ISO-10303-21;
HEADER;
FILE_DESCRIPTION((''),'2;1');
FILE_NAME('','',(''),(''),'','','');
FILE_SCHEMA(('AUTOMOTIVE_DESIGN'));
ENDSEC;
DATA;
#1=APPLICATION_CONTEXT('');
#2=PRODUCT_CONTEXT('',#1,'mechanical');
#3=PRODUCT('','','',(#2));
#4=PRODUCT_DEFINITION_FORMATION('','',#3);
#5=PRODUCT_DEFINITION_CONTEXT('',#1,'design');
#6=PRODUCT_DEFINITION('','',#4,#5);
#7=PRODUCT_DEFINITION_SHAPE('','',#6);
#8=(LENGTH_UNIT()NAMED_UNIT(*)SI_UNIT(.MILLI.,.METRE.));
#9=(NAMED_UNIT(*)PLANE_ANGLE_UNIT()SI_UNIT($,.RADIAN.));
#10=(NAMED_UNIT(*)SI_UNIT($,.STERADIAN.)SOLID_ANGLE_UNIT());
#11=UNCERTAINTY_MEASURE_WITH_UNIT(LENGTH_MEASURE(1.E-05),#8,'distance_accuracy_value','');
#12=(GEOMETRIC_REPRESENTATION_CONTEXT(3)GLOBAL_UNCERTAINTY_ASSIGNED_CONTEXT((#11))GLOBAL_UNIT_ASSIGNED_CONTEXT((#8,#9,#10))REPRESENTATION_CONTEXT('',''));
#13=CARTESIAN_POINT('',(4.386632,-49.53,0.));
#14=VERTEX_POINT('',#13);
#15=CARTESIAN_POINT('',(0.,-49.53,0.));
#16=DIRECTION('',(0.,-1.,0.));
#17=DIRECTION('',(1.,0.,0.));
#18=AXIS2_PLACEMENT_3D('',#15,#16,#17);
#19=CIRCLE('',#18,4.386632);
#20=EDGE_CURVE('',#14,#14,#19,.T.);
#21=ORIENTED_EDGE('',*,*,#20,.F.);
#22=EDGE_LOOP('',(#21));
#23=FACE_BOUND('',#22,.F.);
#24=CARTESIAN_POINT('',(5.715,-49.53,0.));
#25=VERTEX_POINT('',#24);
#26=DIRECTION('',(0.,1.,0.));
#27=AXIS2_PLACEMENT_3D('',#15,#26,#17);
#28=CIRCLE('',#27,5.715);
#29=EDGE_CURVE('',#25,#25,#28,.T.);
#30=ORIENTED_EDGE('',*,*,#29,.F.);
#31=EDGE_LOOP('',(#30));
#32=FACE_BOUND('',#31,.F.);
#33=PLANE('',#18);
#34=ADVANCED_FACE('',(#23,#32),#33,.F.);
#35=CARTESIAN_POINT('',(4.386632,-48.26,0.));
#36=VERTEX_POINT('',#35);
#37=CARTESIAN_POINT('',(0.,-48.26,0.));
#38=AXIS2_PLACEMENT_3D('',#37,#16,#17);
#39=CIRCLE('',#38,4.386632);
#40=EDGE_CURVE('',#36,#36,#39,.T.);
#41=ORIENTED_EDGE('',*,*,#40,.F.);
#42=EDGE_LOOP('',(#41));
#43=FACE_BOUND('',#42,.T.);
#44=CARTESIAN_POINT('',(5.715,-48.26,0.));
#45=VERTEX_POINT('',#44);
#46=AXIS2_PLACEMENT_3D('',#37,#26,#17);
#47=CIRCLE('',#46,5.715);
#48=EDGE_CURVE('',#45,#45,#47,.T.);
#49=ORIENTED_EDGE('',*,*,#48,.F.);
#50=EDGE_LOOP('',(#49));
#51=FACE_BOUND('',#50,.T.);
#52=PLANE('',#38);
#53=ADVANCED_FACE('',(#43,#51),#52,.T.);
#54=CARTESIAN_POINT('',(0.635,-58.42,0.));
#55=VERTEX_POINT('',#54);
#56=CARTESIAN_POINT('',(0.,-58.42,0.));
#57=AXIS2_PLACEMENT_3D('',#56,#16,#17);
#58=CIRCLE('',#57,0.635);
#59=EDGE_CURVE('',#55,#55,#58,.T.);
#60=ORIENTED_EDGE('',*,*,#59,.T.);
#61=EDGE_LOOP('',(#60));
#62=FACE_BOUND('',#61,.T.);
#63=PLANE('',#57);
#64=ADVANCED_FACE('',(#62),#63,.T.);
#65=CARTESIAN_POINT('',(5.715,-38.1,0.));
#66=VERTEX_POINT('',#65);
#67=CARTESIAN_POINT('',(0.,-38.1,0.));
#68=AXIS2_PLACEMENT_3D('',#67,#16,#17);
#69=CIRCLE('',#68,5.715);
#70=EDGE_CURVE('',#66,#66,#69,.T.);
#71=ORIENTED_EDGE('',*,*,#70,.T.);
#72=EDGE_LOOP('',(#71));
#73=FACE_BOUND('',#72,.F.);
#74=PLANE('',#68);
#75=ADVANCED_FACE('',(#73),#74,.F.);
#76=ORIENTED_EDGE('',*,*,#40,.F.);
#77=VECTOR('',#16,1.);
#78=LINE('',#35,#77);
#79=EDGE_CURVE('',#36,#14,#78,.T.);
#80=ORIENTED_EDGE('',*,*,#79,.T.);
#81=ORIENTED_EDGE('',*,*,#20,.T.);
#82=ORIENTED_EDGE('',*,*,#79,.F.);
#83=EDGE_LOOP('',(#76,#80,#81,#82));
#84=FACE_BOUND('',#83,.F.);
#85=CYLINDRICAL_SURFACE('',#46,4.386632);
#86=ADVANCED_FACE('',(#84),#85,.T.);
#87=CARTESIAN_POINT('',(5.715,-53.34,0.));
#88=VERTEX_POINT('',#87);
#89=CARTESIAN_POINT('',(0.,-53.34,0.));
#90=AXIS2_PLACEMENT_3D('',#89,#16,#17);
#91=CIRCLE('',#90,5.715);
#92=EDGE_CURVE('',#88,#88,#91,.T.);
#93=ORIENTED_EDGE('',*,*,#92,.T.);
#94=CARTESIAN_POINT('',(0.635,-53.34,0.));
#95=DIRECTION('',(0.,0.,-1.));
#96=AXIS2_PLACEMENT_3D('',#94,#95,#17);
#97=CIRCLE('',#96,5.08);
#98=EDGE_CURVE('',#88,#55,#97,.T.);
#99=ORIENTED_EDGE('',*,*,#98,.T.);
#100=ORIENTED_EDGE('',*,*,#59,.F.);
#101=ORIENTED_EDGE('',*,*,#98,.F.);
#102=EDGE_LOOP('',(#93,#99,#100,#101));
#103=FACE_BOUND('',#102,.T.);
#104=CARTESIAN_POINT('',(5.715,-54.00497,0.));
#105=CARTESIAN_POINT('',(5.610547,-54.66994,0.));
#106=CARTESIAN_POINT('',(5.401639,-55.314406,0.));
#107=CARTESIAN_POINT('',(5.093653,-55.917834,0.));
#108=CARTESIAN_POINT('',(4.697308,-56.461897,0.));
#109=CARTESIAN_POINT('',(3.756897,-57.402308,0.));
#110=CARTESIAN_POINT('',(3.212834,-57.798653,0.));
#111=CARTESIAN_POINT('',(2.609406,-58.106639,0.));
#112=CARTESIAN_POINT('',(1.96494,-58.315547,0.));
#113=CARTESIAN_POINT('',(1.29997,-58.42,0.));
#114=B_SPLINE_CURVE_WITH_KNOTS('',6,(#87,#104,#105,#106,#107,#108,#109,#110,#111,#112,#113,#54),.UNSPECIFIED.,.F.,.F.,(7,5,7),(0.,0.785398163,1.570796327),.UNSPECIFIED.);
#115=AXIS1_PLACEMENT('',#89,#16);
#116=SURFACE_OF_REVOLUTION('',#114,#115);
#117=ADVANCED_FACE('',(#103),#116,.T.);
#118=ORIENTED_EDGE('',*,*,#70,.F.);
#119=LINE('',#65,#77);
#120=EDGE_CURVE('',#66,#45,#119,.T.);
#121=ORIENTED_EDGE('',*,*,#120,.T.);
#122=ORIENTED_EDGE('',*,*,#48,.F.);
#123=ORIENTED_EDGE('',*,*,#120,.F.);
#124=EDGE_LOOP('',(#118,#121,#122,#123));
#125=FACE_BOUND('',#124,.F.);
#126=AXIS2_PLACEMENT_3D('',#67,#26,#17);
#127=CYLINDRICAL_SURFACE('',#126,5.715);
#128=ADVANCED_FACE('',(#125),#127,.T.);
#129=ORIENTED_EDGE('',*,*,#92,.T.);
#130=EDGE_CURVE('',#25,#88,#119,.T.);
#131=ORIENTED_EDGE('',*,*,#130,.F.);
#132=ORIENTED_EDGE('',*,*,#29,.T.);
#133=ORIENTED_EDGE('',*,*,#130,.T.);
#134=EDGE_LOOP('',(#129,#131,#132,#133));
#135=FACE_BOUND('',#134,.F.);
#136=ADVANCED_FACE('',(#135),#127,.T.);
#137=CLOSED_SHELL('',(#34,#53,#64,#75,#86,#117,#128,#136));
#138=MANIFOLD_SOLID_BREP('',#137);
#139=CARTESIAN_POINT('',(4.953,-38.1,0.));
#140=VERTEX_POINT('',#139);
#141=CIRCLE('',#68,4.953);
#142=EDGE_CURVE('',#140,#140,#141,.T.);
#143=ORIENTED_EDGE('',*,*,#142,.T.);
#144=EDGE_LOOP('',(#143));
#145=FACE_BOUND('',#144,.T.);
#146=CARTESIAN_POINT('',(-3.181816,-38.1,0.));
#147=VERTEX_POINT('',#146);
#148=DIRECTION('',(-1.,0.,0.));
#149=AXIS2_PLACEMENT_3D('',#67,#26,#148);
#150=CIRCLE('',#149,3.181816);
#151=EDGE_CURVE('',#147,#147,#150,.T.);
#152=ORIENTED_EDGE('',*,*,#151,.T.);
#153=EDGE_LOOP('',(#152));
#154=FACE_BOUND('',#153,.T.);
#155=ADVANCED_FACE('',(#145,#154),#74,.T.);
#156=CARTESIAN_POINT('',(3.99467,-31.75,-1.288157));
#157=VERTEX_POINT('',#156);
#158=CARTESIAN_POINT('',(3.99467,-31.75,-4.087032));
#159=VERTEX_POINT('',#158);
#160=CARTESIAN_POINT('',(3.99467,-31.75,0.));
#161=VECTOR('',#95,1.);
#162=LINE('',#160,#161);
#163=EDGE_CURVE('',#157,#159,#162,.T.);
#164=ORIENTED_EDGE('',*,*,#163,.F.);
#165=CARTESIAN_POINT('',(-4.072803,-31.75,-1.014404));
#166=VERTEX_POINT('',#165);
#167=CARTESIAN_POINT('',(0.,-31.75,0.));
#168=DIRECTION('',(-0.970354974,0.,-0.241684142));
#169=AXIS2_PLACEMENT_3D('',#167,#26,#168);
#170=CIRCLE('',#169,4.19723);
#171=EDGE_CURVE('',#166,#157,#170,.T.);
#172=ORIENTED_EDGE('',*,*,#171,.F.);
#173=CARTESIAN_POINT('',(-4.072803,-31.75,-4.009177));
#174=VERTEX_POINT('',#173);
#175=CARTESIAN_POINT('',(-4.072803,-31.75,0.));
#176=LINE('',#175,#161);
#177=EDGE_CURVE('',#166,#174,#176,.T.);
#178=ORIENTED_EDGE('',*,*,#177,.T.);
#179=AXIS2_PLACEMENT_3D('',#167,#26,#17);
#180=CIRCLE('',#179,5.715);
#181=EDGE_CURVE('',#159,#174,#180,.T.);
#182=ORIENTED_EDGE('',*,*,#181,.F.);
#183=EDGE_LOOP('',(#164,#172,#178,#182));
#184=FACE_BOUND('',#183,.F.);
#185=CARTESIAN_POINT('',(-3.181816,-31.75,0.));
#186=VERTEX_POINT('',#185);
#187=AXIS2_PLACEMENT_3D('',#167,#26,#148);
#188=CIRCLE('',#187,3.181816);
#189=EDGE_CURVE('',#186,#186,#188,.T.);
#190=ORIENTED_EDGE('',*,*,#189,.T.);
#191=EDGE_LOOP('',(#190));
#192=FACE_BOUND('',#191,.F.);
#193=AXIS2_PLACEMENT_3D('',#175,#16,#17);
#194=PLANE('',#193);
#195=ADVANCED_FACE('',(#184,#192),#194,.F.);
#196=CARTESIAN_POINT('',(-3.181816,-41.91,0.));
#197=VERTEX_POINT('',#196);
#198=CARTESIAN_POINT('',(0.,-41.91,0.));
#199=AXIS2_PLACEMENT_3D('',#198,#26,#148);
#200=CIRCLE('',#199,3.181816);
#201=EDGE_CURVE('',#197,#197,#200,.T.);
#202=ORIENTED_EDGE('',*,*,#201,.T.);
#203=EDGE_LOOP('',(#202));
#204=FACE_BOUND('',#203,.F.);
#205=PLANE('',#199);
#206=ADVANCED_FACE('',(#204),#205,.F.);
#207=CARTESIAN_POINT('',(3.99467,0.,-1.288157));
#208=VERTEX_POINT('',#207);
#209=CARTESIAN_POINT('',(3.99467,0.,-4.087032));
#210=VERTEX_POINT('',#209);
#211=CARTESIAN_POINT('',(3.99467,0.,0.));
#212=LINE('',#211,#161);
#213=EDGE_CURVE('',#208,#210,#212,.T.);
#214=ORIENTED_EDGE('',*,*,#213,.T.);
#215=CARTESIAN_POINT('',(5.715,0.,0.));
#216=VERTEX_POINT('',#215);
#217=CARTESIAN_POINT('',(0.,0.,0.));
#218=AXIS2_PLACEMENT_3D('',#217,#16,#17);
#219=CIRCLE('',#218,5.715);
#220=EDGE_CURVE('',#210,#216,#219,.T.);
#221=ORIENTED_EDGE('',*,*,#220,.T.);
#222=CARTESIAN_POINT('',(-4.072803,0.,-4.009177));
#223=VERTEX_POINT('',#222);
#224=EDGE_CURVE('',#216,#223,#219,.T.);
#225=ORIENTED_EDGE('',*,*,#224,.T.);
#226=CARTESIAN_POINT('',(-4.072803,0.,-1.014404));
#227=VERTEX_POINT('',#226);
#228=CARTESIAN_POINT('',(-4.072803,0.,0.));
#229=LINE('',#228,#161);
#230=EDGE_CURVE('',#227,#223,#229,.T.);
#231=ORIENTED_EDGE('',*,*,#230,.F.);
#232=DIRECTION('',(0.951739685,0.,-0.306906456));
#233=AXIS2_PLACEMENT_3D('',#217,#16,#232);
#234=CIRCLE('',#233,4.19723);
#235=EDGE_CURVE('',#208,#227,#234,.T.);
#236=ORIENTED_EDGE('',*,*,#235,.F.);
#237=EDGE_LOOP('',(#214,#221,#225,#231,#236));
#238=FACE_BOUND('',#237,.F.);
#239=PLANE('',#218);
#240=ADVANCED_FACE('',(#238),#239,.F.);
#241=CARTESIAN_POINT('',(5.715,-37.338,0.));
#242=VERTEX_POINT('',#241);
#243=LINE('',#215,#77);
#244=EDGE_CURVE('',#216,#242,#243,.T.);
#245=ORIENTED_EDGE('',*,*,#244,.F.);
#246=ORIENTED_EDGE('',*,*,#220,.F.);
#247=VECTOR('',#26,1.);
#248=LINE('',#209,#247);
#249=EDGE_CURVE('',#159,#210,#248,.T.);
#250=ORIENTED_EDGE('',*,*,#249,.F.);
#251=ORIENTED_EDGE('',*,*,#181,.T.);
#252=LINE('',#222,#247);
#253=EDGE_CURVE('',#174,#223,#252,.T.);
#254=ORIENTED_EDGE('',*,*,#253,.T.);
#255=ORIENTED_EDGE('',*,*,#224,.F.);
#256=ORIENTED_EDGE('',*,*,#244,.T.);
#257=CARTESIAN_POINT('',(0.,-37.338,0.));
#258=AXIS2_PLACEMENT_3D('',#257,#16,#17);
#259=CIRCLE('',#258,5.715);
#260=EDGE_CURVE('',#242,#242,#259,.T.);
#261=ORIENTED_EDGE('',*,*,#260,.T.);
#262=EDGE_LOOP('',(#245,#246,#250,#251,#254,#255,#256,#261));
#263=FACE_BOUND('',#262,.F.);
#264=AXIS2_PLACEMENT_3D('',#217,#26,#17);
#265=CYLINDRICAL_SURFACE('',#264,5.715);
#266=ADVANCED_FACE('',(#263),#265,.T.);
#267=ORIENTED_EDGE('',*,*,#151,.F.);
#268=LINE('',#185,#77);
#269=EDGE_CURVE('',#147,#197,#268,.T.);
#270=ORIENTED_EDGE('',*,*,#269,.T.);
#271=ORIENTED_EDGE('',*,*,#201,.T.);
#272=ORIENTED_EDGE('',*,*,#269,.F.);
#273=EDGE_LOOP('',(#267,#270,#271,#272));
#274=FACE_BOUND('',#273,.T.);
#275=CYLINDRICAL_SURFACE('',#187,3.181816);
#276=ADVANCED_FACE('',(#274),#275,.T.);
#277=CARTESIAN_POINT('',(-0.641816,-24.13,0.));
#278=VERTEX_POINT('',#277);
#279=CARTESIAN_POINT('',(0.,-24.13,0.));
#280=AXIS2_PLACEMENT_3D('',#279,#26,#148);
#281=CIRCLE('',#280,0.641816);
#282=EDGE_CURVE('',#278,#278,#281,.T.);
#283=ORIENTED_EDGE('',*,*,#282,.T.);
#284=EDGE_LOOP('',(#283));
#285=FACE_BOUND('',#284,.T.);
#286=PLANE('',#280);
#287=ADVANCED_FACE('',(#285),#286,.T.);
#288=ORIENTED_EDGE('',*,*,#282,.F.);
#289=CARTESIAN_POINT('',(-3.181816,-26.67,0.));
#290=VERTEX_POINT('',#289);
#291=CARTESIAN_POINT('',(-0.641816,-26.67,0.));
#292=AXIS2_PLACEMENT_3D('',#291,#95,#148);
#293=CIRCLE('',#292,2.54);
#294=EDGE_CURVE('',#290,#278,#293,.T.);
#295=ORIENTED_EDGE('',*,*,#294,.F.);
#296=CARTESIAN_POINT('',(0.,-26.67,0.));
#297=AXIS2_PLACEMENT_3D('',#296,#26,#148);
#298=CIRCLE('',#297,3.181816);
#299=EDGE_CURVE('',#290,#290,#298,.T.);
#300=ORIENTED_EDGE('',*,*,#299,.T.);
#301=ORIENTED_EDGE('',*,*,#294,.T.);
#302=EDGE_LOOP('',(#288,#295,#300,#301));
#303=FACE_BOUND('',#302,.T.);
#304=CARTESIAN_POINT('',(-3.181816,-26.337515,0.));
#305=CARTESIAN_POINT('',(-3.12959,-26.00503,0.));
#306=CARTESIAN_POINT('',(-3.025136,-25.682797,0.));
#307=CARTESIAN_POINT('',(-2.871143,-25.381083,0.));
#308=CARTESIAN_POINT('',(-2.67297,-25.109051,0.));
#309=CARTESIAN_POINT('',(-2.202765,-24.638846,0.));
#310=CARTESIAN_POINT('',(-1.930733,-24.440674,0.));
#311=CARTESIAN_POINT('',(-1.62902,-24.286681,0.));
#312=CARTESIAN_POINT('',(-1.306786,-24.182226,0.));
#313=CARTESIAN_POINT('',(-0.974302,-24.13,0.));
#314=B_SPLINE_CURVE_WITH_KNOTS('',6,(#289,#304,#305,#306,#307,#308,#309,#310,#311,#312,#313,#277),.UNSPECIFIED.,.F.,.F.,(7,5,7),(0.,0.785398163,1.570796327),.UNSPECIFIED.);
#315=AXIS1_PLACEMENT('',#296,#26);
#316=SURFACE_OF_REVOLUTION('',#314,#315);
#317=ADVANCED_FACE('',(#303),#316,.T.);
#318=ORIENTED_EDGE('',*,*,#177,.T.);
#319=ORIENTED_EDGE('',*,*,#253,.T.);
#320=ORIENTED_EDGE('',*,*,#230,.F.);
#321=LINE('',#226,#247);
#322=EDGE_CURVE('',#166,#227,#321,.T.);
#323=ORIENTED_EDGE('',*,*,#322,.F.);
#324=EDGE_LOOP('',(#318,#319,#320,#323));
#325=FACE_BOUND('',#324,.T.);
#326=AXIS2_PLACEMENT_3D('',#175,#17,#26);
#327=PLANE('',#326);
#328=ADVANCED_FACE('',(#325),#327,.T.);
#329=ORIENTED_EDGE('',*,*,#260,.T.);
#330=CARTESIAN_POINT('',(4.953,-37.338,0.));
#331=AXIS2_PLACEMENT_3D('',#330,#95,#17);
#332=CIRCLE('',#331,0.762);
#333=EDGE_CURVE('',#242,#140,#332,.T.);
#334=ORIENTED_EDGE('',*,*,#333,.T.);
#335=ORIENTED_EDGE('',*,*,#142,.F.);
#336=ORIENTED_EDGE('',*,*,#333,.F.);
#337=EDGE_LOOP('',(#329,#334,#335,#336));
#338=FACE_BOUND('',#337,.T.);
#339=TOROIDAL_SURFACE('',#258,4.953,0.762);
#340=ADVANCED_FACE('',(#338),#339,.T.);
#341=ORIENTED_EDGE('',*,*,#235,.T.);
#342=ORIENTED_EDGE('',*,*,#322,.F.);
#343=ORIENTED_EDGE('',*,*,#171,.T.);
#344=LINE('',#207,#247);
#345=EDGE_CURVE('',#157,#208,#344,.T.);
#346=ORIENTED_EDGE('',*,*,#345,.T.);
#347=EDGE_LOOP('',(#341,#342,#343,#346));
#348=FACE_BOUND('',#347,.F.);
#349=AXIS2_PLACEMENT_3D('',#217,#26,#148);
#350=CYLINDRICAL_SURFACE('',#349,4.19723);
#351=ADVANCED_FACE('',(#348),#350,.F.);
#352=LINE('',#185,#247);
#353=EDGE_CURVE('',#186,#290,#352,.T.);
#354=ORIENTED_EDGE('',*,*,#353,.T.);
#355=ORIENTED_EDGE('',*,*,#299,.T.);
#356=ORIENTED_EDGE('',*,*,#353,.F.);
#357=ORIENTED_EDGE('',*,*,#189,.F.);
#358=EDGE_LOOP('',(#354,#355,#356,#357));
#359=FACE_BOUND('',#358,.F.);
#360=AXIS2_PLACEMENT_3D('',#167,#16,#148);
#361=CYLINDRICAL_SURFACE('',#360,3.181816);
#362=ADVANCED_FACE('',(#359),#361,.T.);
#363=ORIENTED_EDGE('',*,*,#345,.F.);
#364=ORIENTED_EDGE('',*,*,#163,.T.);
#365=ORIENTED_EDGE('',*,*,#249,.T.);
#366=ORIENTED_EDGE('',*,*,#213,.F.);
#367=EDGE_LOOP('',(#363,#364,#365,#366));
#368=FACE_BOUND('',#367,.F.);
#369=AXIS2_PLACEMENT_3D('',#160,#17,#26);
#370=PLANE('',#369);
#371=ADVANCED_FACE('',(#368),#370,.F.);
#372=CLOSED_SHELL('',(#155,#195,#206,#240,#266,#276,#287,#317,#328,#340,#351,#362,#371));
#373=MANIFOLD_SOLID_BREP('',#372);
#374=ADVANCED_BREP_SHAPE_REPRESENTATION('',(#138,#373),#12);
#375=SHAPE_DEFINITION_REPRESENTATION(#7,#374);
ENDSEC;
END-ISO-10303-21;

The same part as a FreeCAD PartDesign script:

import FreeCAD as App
import Part
import Sketcher

V = App.Vector
Q = App.Units.Quantity


def edges_at(feature, points):
    """Names of the edges that pass closest to the given points."""
    edges = feature.Shape.Edges
    near = lambda p: min(range(len(edges)), key=lambda i: edges[i].distToShape(Part.Vertex(*p))[0])
    return sorted({f"Edge{near(p) + 1}" for p in points})

doc = App.newDocument("Part")
params = doc.addObject("Spreadsheet::Sheet", "Params")
for row, (alias, value) in enumerate([
    ("sketch1_diameter", "0.45 in"),
    ("pad1_length", "1.5 in"),
    ("fillet_radius", "0.03 in"),
    ("pocket1_length", "1.25 in"),
    ("sketch3_height", "1.25 in"),
    ("pocket2_length", "1 in"),
    ("pad2_length", "0.3 in"),
    ("pad2_length2", "0.4 in"),
    ("fillet2_radius", "0.1 in"),
    ("sketch5_diameter", "0.45 in"),
    ("pad3_length", "0.8 in"),
    ("fillet3_radius", "0.2 in"),
    ("pocket3_length", "0.05 in"),
], start=1):
    params.set(f"A{row}", alias)
    params.set(f"B{row}", "=" + value)
    params.setAlias(f"B{row}", alias)

body = doc.addObject("PartDesign::Body", "Body")

# Sketch on XZ plane
sketch1 = doc.addObject("Sketcher::SketchObject", "Sketch")
body.addObject(sketch1)
sketch1.AttachmentSupport = (doc.XZ_Plane, [""])
sketch1.MapMode = "FlatFace"
sketch1.addGeometry(Part.Circle(V(0, 0, 0), V(0, 0, 1), 5.715), False)
sketch1.addConstraint(Sketcher.Constraint("Coincident", 0, 3, -1, 1))
sketch1.addConstraint(Sketcher.Constraint("Diameter", 0, Q("0.45 in")))
sketch1.setExpression("Constraints[1]", "Params.sketch1_diameter")
pad1 = doc.addObject("PartDesign::Pad", "Pad")
body.addObject(pad1)
pad1.Profile = sketch1
pad1.setExpression("Length", "Params.pad1_length")
doc.recompute()

fillet = doc.addObject("PartDesign::Fillet", "Fillet")
body.addObject(fillet)
fillet.Base = (pad1, edges_at(pad1, [(-5.715, -38.1, 0)]))
fillet.setExpression("Radius", "Params.fillet_radius")

# Sketch on XZ plane
sketch2 = doc.addObject("Sketcher::SketchObject", "Sketch001")
body.addObject(sketch2)
sketch2.AttachmentSupport = (doc.XZ_Plane, [""])
sketch2.MapMode = "FlatFace"
sketch2.addGeometry(Part.Circle(V(0, 0, 0), V(0, 0, 1), 4.19723), False)
sketch2.addConstraint(Sketcher.Constraint("Coincident", 0, 3, -1, 1))
sketch2.addConstraint(Sketcher.Constraint("Diameter", 0, Q("8.39446 mm")))
pocket1 = doc.addObject("PartDesign::Pocket", "Pocket")
body.addObject(pocket1)
pocket1.Profile = sketch2
pocket1.setExpression("Length", "Params.pocket1_length")
pocket1.Reversed = True

# Sketch on XY plane
sketch3 = doc.addObject("Sketcher::SketchObject", "Sketch002")
body.addObject(sketch3)
sketch3.AttachmentSupport = (doc.XY_Plane, [""])
sketch3.MapMode = "FlatFace"
sketch3.addGeometry(Part.LineSegment(V(-4.072803, 0, 0), V(-4.072803, -31.75, 0)), False)
sketch3.addGeometry(Part.LineSegment(V(-4.072803, -31.75, 0), V(3.99467, -31.75, 0)), False)
sketch3.addGeometry(Part.LineSegment(V(3.99467, -31.75, 0), V(3.99467, 0, 0)), False)
sketch3.addGeometry(Part.LineSegment(V(3.99467, 0, 0), V(-4.072803, 0, 0)), False)
sketch3.addConstraint(Sketcher.Constraint("Coincident", 0, 2, 1, 1))
sketch3.addConstraint(Sketcher.Constraint("Coincident", 1, 2, 2, 1))
sketch3.addConstraint(Sketcher.Constraint("Coincident", 2, 2, 3, 1))
sketch3.addConstraint(Sketcher.Constraint("Coincident", 3, 2, 0, 1))
sketch3.addConstraint(Sketcher.Constraint("Vertical", 0))
sketch3.addConstraint(Sketcher.Constraint("Horizontal", 1))
sketch3.addConstraint(Sketcher.Constraint("Vertical", 2))
sketch3.addConstraint(Sketcher.Constraint("Horizontal", 3))
sketch3.addConstraint(Sketcher.Constraint("PointOnObject", 2, 2, -1))
sketch3.addConstraint(Sketcher.Constraint("DistanceY", 0, 2, 0, 1, Q("1.25 in")))
sketch3.addConstraint(Sketcher.Constraint("DistanceX", 1, 1, 1, 2, Q("8.067473 mm")))
sketch3.addConstraint(Sketcher.Constraint("DistanceX", -1, 1, 1, 2, Q("3.99467 mm")))
sketch3.setExpression("Constraints[9]", "Params.sketch3_height")
pocket2 = doc.addObject("PartDesign::Pocket", "Pocket001")
body.addObject(pocket2)
pocket2.Profile = sketch3
pocket2.setExpression("Length", "Params.pocket2_length")

# Sketch on XZ plane
sketch4 = doc.addObject("Sketcher::SketchObject", "Sketch003")
body.addObject(sketch4)
sketch4.AttachmentSupport = (doc.XZ_Plane, [""])
sketch4.MapMode = "FlatFace"
sketch4.AttachmentOffset = App.Placement(V(0, 0, 1.25 * 25.4), App.Rotation())
sketch4.addGeometry(Part.Circle(V(0, 0, 0), V(0, 0, 1), 3.181816), False)
sketch4.addConstraint(Sketcher.Constraint("Coincident", 0, 3, -1, 1))
sketch4.addConstraint(Sketcher.Constraint("Diameter", 0, Q("6.363633 mm")))
pad2 = doc.addObject("PartDesign::Pad", "Pad001")
body.addObject(pad2)
pad2.Profile = sketch4
pad2.Type = "TwoLengths"
pad2.setExpression("Length", "Params.pad2_length")
pad2.setExpression("Length2", "Params.pad2_length2")
pad2.Reversed = True
doc.recompute()

fillet2 = doc.addObject("PartDesign::Fillet", "Fillet001")
body.addObject(fillet2)
fillet2.Base = (pad2, edges_at(pad2, [(3.182, -24.13, 0)]))
fillet2.setExpression("Radius", "Params.fillet2_radius")
body2 = doc.addObject("PartDesign::Body", "Body001")

# Sketch on XZ plane
sketch5 = doc.addObject("Sketcher::SketchObject", "Sketch004")
body2.addObject(sketch5)
sketch5.AttachmentSupport = (doc.getObject("XZ_Plane001"), [""])
sketch5.MapMode = "FlatFace"
sketch5.AttachmentOffset = App.Placement(V(0, 0, 1.5 * 25.4), App.Rotation())
sketch5.addGeometry(Part.Circle(V(0, 0, 0), V(0, 0, 1), 5.715), False)
sketch5.addConstraint(Sketcher.Constraint("Coincident", 0, 3, -1, 1))
sketch5.addConstraint(Sketcher.Constraint("Diameter", 0, Q("0.45 in")))
sketch5.setExpression("Constraints[1]", "Params.sketch5_diameter")
pad3 = doc.addObject("PartDesign::Pad", "Pad002")
body2.addObject(pad3)
pad3.Profile = sketch5
pad3.setExpression("Length", "Params.pad3_length")
doc.recompute()

fillet3 = doc.addObject("PartDesign::Fillet", "Fillet002")
body2.addObject(fillet3)
fillet3.Base = (pad3, edges_at(pad3, [(-5.715, -58.42, 0)]))
fillet3.setExpression("Radius", "Params.fillet3_radius")

# Sketch on XZ plane
sketch6 = doc.addObject("Sketcher::SketchObject", "Sketch005")
body2.addObject(sketch6)
sketch6.AttachmentSupport = (doc.getObject("XZ_Plane001"), [""])
sketch6.MapMode = "FlatFace"
sketch6.AttachmentOffset = App.Placement(V(0, 0, 1.9 * 25.4), App.Rotation())
sketch6.addGeometry(Part.Circle(V(0, 0, 0), V(0, 0, 1), 10.189738), False)
sketch6.addGeometry(Part.Circle(V(0, 0, 0), V(0, 0, 1), 4.386632), False)
sketch6.addConstraint(Sketcher.Constraint("Coincident", 0, 3, -1, 1))
sketch6.addConstraint(Sketcher.Constraint("Coincident", 1, 3, -1, 1))
sketch6.addConstraint(Sketcher.Constraint("Diameter", 0, Q("20.379476 mm")))
sketch6.addConstraint(Sketcher.Constraint("Diameter", 1, Q("8.773265 mm")))
pocket3 = doc.addObject("PartDesign::Pocket", "Pocket002")
body2.addObject(pocket3)
pocket3.Profile = sketch6
pocket3.setExpression("Length", "Params.pocket3_length")
pocket3.Reversed = True

doc.recompute()
